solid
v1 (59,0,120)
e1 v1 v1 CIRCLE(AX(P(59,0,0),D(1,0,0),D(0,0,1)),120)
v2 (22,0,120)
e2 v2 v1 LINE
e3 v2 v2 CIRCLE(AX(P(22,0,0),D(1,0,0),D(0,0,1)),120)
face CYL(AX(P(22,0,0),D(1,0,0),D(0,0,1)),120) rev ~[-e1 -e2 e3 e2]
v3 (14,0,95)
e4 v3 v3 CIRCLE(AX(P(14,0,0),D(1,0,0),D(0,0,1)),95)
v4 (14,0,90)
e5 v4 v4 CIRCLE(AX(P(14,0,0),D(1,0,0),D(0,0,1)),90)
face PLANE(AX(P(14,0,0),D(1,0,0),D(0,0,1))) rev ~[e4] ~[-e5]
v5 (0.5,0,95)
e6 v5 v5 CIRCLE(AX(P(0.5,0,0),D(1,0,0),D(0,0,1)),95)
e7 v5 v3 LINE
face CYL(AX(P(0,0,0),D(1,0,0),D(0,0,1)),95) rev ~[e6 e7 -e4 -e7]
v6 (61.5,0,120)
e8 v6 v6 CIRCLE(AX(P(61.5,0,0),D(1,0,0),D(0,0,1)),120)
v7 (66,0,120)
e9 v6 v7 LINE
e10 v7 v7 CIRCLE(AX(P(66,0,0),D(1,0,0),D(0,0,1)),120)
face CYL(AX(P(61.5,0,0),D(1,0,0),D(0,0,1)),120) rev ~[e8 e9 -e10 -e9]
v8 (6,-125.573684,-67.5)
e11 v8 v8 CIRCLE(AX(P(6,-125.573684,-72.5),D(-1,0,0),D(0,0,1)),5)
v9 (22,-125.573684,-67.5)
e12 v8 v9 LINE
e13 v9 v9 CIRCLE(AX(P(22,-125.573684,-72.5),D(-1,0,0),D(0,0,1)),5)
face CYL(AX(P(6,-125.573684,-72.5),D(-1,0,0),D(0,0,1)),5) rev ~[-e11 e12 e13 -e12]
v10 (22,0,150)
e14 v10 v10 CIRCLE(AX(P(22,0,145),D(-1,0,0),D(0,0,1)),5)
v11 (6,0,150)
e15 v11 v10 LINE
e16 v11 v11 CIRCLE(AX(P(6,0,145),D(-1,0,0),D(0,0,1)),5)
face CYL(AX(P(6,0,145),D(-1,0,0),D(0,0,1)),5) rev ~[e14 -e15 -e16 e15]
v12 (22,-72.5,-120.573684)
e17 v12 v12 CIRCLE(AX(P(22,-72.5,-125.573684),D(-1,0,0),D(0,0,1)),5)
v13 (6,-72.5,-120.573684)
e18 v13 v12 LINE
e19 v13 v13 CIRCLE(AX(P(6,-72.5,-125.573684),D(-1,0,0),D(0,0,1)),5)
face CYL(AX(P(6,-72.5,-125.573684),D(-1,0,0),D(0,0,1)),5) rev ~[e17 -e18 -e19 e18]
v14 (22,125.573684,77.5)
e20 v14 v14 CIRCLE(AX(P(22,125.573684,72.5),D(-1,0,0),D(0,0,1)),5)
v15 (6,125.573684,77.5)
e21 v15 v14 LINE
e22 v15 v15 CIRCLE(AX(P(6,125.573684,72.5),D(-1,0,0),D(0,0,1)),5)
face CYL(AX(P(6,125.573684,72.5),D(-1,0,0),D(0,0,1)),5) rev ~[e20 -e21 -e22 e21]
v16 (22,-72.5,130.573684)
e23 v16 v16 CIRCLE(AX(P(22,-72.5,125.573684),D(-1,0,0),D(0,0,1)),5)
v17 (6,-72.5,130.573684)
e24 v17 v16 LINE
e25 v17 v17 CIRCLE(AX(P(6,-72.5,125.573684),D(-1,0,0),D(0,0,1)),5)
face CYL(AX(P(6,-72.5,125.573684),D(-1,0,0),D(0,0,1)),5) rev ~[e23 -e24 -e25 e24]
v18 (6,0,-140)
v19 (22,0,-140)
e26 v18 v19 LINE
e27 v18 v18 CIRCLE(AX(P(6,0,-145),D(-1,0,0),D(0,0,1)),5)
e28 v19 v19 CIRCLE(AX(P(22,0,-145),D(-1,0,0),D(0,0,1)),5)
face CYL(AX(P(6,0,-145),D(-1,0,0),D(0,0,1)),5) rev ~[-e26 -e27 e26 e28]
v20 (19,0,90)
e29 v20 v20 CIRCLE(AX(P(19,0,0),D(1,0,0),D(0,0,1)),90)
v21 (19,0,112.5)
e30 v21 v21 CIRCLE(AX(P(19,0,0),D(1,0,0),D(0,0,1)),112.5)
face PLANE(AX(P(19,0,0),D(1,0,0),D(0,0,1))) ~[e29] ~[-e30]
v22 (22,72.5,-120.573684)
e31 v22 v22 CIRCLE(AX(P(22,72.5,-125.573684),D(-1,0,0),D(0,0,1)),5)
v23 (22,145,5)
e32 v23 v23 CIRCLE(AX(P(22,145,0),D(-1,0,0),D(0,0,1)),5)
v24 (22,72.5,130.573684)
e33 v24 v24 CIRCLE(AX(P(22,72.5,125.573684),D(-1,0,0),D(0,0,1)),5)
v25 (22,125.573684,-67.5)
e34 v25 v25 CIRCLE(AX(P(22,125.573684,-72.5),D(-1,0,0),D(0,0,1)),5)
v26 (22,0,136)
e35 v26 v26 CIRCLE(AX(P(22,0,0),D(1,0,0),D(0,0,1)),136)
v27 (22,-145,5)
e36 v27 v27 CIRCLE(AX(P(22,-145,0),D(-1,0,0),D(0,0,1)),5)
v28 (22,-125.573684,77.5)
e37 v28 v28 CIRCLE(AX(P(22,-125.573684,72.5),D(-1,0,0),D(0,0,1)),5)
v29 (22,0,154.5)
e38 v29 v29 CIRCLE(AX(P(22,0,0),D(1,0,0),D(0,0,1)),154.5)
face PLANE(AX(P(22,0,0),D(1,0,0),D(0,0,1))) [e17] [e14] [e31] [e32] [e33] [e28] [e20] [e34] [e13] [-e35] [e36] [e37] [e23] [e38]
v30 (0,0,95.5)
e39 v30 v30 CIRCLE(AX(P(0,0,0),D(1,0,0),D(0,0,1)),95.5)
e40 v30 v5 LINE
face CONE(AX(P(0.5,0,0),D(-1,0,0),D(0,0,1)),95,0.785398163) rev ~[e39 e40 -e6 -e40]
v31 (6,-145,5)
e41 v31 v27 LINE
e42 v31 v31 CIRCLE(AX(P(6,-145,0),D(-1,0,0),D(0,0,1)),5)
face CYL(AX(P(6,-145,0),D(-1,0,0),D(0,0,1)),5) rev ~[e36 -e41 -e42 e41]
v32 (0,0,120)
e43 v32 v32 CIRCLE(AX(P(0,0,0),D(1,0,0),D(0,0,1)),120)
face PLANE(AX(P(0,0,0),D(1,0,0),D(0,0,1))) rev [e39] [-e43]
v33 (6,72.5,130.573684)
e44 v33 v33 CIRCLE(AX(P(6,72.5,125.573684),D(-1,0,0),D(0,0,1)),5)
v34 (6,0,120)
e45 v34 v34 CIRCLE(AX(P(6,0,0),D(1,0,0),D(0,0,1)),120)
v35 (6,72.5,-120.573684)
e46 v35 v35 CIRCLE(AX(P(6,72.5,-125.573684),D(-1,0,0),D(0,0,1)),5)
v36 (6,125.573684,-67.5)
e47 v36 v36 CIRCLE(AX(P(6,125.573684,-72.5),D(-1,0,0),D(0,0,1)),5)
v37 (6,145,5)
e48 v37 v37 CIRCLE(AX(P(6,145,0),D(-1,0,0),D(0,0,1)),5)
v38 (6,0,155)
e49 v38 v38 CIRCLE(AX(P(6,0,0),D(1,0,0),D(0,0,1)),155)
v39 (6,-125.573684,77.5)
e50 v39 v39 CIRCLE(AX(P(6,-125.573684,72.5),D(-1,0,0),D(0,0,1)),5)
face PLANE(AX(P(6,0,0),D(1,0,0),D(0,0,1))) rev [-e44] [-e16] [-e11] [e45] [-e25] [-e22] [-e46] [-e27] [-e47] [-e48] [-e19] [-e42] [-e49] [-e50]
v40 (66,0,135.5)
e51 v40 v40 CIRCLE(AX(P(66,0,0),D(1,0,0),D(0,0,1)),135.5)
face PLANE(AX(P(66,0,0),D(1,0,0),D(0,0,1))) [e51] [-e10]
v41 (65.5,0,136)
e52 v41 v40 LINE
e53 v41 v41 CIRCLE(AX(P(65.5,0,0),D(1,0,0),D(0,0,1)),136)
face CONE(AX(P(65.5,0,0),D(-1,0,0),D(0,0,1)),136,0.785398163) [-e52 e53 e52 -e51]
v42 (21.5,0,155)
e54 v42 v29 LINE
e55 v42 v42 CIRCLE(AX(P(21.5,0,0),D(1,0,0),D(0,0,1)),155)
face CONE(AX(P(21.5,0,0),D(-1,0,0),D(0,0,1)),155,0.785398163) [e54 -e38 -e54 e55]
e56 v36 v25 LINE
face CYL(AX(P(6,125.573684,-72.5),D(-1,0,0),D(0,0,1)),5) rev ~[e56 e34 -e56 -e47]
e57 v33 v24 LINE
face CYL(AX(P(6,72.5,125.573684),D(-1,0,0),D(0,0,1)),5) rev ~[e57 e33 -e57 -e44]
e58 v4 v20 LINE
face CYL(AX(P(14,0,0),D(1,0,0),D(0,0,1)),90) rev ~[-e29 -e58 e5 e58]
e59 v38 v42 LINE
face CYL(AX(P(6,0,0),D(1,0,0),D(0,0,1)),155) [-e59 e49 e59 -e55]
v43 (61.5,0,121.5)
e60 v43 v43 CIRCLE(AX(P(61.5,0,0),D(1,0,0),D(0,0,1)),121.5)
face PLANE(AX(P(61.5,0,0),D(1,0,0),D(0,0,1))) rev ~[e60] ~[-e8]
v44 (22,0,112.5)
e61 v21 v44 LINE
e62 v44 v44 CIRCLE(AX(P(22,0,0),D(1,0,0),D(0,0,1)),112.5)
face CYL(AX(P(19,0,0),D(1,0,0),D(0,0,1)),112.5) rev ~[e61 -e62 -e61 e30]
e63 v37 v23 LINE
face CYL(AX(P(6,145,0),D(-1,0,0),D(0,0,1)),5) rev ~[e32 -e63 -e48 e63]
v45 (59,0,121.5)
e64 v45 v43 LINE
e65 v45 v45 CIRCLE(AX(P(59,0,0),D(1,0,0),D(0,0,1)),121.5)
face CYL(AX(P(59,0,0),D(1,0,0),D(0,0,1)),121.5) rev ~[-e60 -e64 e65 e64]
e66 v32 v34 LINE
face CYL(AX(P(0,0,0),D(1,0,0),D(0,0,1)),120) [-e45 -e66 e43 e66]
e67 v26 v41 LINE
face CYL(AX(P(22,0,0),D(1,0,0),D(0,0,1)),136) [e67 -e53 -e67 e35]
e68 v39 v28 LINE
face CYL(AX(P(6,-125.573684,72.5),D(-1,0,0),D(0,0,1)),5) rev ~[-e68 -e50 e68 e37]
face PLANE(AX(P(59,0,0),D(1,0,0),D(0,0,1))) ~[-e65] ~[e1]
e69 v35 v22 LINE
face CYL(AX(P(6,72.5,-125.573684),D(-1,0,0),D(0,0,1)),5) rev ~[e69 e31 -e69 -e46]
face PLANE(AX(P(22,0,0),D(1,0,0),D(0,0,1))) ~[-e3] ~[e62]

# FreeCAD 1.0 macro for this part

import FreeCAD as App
import Part
import Sketcher


def edges_at(feature, points):
    """Names of the edges that pass closest to the given points."""
    edges = feature.Shape.Edges
    near = lambda p: min(range(len(edges)), key=lambda i: edges[i].distToShape(Part.Vertex(*p))[0])
    return sorted({f"Edge{near(p) + 1}" for p in points})

doc = App.newDocument("Part")
params = doc.addObject("Spreadsheet::Sheet", "Params")
for row, (alias, value) in enumerate([
    ("sketch1_width", "66 mm"),
    ("sketch1_width2", "44 mm"),
    ("sketch1_width3", "16 mm"),
    ("sketch1_height", "120 mm"),
    ("sketch1_height2", "136 mm"),
    ("revolution_angle", "360 deg"),
    ("sketch2_width", "66 mm"),
    ("sketch2_width2", "37 mm"),
    ("sketch2_width3", "3 mm"),
    ("sketch2_width4", "5 mm"),
    ("sketch2_width5", "14 mm"),
    ("groove_angle", "360 deg"),
    ("sketch3_diameter", "10 mm"),
    ("chamfer_size", "0.5 mm"),
], start=1):
    params.set(f"A{row}", alias)
    params.set(f"B{row}", "=" + value)
    params.setAlias(f"B{row}", alias)

body = doc.addObject("PartDesign::Body", "Body")

sketch1 = body.newObject("Sketcher::SketchObject", "Sketch")
sketch1.AttachmentSupport = (doc.getObject("XY_Plane"), [""])
sketch1.MapMode = "FlatFace"
sketch1.addGeometry([
    Part.LineSegment(App.Vector(0, 120, 0), App.Vector(0, 0, 0)),
    Part.LineSegment(App.Vector(0, 0, 0), App.Vector(66, 0, 0)),
    Part.LineSegment(App.Vector(66, 0, 0), App.Vector(66, 136, 0)),
    Part.LineSegment(App.Vector(66, 136, 0), App.Vector(22, 136, 0)),
    Part.LineSegment(App.Vector(22, 136, 0), App.Vector(22, 155, 0)),
    Part.LineSegment(App.Vector(22, 155, 0), App.Vector(6, 155, 0)),
    Part.LineSegment(App.Vector(6, 155, 0), App.Vector(6, 120, 0)),
    Part.LineSegment(App.Vector(6, 120, 0), App.Vector(0, 120, 0)),
], False)
sketch1.addConstraint([
    Sketcher.Constraint("Coincident", 0, 2, 1, 1),
    Sketcher.Constraint("Coincident", 1, 2, 2, 1),
    Sketcher.Constraint("Coincident", 2, 2, 3, 1),
    Sketcher.Constraint("Coincident", 3, 2, 4, 1),
    Sketcher.Constraint("Coincident", 4, 2, 5, 1),
    Sketcher.Constraint("Coincident", 5, 2, 6, 1),
    Sketcher.Constraint("Coincident", 6, 2, 7, 1),
    Sketcher.Constraint("Coincident", 7, 2, 0, 1),
    Sketcher.Constraint("Vertical", 0),
    Sketcher.Constraint("Horizontal", 1),
    Sketcher.Constraint("Vertical", 2),
    Sketcher.Constraint("Horizontal", 3),
    Sketcher.Constraint("Vertical", 4),
    Sketcher.Constraint("Horizontal", 5),
    Sketcher.Constraint("Vertical", 6),
    Sketcher.Constraint("Horizontal", 7),
    Sketcher.Constraint("Coincident", 0, 2, -1, 1),
    Sketcher.Constraint("DistanceX", 1, 1, 1, 2, 66.0),
    Sketcher.Constraint("DistanceX", 3, 2, 3, 1, 44.0),
    Sketcher.Constraint("DistanceX", 5, 2, 5, 1, 16.0),
    Sketcher.Constraint("DistanceY", 0, 2, 0, 1, 120.0),
    Sketcher.Constraint("DistanceY", 2, 1, 2, 2, 136.0),
    Sketcher.Constraint("DistanceY", 4, 1, 4, 2, 19.0),
])
sketch1.setExpression("Constraints[17]", "Params.sketch1_width")
sketch1.setExpression("Constraints[18]", "Params.sketch1_width2")
sketch1.setExpression("Constraints[19]", "Params.sketch1_width3")
sketch1.setExpression("Constraints[20]", "Params.sketch1_height")
sketch1.setExpression("Constraints[21]", "Params.sketch1_height2")
revolution = body.newObject("PartDesign::Revolution", "Revolution")
revolution.Profile = sketch1
revolution.ReferenceAxis = (sketch1, ["H_Axis"])
revolution.setExpression("Angle", "Params.revolution_angle")

sketch2 = body.newObject("Sketcher::SketchObject", "Sketch001")
sketch2.AttachmentSupport = (doc.getObject("XY_Plane"), [""])
sketch2.MapMode = "FlatFace"
sketch2.addGeometry([
    Part.LineSegment(App.Vector(0, 95, 0), App.Vector(0, 0, 0)),
    Part.LineSegment(App.Vector(0, 0, 0), App.Vector(66, 0, 0)),
    Part.LineSegment(App.Vector(66, 0, 0), App.Vector(66, 120, 0)),
    Part.LineSegment(App.Vector(66, 120, 0), App.Vector(61.5, 120, 0)),
    Part.LineSegment(App.Vector(61.5, 120, 0), App.Vector(61.5, 121.5, 0)),
    Part.LineSegment(App.Vector(61.5, 121.5, 0), App.Vector(59, 121.5, 0)),
    Part.LineSegment(App.Vector(59, 121.5, 0), App.Vector(59, 120, 0)),
    Part.LineSegment(App.Vector(59, 120, 0), App.Vector(22, 120, 0)),
    Part.LineSegment(App.Vector(22, 120, 0), App.Vector(22, 112.5, 0)),
    Part.LineSegment(App.Vector(22, 112.5, 0), App.Vector(19, 112.5, 0)),
    Part.LineSegment(App.Vector(19, 112.5, 0), App.Vector(19, 90, 0)),
    Part.LineSegment(App.Vector(19, 90, 0), App.Vector(14, 90, 0)),
    Part.LineSegment(App.Vector(14, 90, 0), App.Vector(14, 95, 0)),
    Part.LineSegment(App.Vector(14, 95, 0), App.Vector(0, 95, 0)),
], False)
sketch2.addConstraint([
    Sketcher.Constraint("Coincident", 0, 2, 1, 1),
    Sketcher.Constraint("Coincident", 1, 2, 2, 1),
    Sketcher.Constraint("Coincident", 2, 2, 3, 1),
    Sketcher.Constraint("Coincident", 3, 2, 4, 1),
    Sketcher.Constraint("Coincident", 4, 2, 5, 1),
    Sketcher.Constraint("Coincident", 5, 2, 6, 1),
    Sketcher.Constraint("Coincident", 6, 2, 7, 1),
    Sketcher.Constraint("Coincident", 7, 2, 8, 1),
    Sketcher.Constraint("Coincident", 8, 2, 9, 1),
    Sketcher.Constraint("Coincident", 9, 2, 10, 1),
    Sketcher.Constraint("Coincident", 10, 2, 11, 1),
    Sketcher.Constraint("Coincident", 11, 2, 12, 1),
    Sketcher.Constraint("Coincident", 12, 2, 13, 1),
    Sketcher.Constraint("Coincident", 13, 2, 0, 1),
    Sketcher.Constraint("Vertical", 0),
    Sketcher.Constraint("Horizontal", 1),
    Sketcher.Constraint("Vertical", 2),
    Sketcher.Constraint("Horizontal", 3),
    Sketcher.Constraint("Vertical", 4),
    Sketcher.Constraint("Horizontal", 5),
    Sketcher.Constraint("Vertical", 6),
    Sketcher.Constraint("Horizontal", 7),
    Sketcher.Constraint("Vertical", 8),
    Sketcher.Constraint("Horizontal", 9),
    Sketcher.Constraint("Vertical", 10),
    Sketcher.Constraint("Horizontal", 11),
    Sketcher.Constraint("Vertical", 12),
    Sketcher.Constraint("Horizontal", 13),
    Sketcher.Constraint("Coincident", 0, 2, -1, 1),
    Sketcher.Constraint("Horizontal", 3, 2, 6, 2),
    Sketcher.Constraint("Equal", 11, 12),
    Sketcher.Constraint("DistanceX", 1, 1, 1, 2, 66.0),
    Sketcher.Constraint("DistanceX", 7, 2, 7, 1, 37.0),
    Sketcher.Constraint("DistanceX", 9, 2, 9, 1, 3.0),
    Sketcher.Constraint("DistanceX", 11, 2, 11, 1, 5.0),
    Sketcher.Constraint("DistanceX", 13, 2, 13, 1, 14.0),
    Sketcher.Constraint("DistanceY", 0, 2, 0, 1, 95.0),
    Sketcher.Constraint("DistanceY", 2, 1, 2, 2, 120.0),
    Sketcher.Constraint("DistanceX", 3, 2, 3, 1, 4.5),
    Sketcher.Constraint("DistanceY", 4, 1, 4, 2, 1.5),
    Sketcher.Constraint("DistanceY", 8, 2, 8, 1, 7.5),
])
sketch2.setExpression("Constraints[31]", "Params.sketch2_width")
sketch2.setExpression("Constraints[32]", "Params.sketch2_width2")
sketch2.setExpression("Constraints[33]", "Params.sketch2_width3")
sketch2.setExpression("Constraints[34]", "Params.sketch2_width4")
sketch2.setExpression("Constraints[35]", "Params.sketch2_width5")
groove = body.newObject("PartDesign::Groove", "Groove")
groove.Profile = sketch2
groove.ReferenceAxis = (sketch2, ["H_Axis"])
groove.setExpression("Angle", "Params.groove_angle")

sketch3 = body.newObject("Sketcher::SketchObject", "Sketch002")
sketch3.AttachmentSupport = (doc.getObject("YZ_Plane"), [""])
sketch3.MapMode = "FlatFace"
sketch3.AttachmentOffset = App.Placement(App.Vector(0, 0, 6), App.Rotation())
sketch3.addGeometry([
    Part.Circle(App.Vector(145, 0, 0), App.Vector(0, 0, 1), 5),
    Part.Circle(App.Vector(126, 72, 0), App.Vector(0, 0, 1), 5),
    Part.Circle(App.Vector(72, 126, 0), App.Vector(0, 0, 1), 5),
    Part.Circle(App.Vector(0, 145, 0), App.Vector(0, 0, 1), 5),
    Part.Circle(App.Vector(-72, 126, 0), App.Vector(0, 0, 1), 5),
    Part.Circle(App.Vector(-126, 72, 0), App.Vector(0, 0, 1), 5),
    Part.Circle(App.Vector(-145, 0, 0), App.Vector(0, 0, 1), 5),
    Part.Circle(App.Vector(-126, -72, 0), App.Vector(0, 0, 1), 5),
    Part.Circle(App.Vector(-72, -126, 0), App.Vector(0, 0, 1), 5),
    Part.Circle(App.Vector(0, -145, 0), App.Vector(0, 0, 1), 5),
    Part.Circle(App.Vector(72, -126, 0), App.Vector(0, 0, 1), 5),
    Part.Circle(App.Vector(126, -72, 0), App.Vector(0, 0, 1), 5),
], False)
sketch3.addConstraint([
    Sketcher.Constraint("Equal", 0, 1),
    Sketcher.Constraint("Equal", 1, 2),
    Sketcher.Constraint("Equal", 2, 3),
    Sketcher.Constraint("Equal", 3, 4),
    Sketcher.Constraint("Equal", 4, 5),
    Sketcher.Constraint("Equal", 5, 6),
    Sketcher.Constraint("Equal", 6, 7),
    Sketcher.Constraint("Equal", 7, 8),
    Sketcher.Constraint("Equal", 8, 9),
    Sketcher.Constraint("Equal", 9, 10),
    Sketcher.Constraint("Equal", 10, 11),
    Sketcher.Constraint("Symmetric", 0, 3, 6, 3, -1, 1),
    Sketcher.Constraint("Symmetric", 1, 3, 7, 3, -1, 1),
    Sketcher.Constraint("Symmetric", 2, 3, 8, 3, -1, 1),
    Sketcher.Constraint("Symmetric", 3, 3, 9, 3, -1, 1),
    Sketcher.Constraint("Symmetric", 4, 3, 10, 3, -1, 1),
    Sketcher.Constraint("Symmetric", 5, 3, 11, 3, -1, 1),
    Sketcher.Constraint("Symmetric", 2, 3, 4, 3, -2),
    Sketcher.Constraint("Symmetric", 1, 3, 5, 3, -2),
    Sketcher.Constraint("PointOnObject", 0, 3, -1),
    Sketcher.Constraint("PointOnObject", 3, 3, -2),
    Sketcher.Constraint("Diameter", 0, 10.0),
    Sketcher.Constraint("DistanceX", -1, 1, 0, 3, 145.0),
    Sketcher.Constraint("DistanceY", -1, 1, 3, 3, 145.0),
    Sketcher.Constraint("DistanceX", 4, 3, 2, 3, 145.0),
    Sketcher.Constraint("DistanceY", 7, 3, 5, 3, 145.0),
    Sketcher.Constraint("DistanceX", -1, 1, 1, 3, 125.573684),
    Sketcher.Constraint("DistanceY", -1, 1, 2, 3, 125.573684),
])
sketch3.setExpression("Constraints[21]", "Params.sketch3_diameter")
pocket1 = body.newObject("PartDesign::Pocket", "Pocket")
pocket1.Profile = sketch3
pocket1.Type = "ThroughAll"
pocket1.Reversed = True
doc.recompute()

chamfer = body.newObject("PartDesign::Chamfer", "Chamfer")
chamfer.Base = (pocket1, edges_at(pocket1, [(0, 0, -95), (66, 0, -136), (22, 0, -155)]))
chamfer.setExpression("Size", "Params.chamfer_size")

doc.recompute()
